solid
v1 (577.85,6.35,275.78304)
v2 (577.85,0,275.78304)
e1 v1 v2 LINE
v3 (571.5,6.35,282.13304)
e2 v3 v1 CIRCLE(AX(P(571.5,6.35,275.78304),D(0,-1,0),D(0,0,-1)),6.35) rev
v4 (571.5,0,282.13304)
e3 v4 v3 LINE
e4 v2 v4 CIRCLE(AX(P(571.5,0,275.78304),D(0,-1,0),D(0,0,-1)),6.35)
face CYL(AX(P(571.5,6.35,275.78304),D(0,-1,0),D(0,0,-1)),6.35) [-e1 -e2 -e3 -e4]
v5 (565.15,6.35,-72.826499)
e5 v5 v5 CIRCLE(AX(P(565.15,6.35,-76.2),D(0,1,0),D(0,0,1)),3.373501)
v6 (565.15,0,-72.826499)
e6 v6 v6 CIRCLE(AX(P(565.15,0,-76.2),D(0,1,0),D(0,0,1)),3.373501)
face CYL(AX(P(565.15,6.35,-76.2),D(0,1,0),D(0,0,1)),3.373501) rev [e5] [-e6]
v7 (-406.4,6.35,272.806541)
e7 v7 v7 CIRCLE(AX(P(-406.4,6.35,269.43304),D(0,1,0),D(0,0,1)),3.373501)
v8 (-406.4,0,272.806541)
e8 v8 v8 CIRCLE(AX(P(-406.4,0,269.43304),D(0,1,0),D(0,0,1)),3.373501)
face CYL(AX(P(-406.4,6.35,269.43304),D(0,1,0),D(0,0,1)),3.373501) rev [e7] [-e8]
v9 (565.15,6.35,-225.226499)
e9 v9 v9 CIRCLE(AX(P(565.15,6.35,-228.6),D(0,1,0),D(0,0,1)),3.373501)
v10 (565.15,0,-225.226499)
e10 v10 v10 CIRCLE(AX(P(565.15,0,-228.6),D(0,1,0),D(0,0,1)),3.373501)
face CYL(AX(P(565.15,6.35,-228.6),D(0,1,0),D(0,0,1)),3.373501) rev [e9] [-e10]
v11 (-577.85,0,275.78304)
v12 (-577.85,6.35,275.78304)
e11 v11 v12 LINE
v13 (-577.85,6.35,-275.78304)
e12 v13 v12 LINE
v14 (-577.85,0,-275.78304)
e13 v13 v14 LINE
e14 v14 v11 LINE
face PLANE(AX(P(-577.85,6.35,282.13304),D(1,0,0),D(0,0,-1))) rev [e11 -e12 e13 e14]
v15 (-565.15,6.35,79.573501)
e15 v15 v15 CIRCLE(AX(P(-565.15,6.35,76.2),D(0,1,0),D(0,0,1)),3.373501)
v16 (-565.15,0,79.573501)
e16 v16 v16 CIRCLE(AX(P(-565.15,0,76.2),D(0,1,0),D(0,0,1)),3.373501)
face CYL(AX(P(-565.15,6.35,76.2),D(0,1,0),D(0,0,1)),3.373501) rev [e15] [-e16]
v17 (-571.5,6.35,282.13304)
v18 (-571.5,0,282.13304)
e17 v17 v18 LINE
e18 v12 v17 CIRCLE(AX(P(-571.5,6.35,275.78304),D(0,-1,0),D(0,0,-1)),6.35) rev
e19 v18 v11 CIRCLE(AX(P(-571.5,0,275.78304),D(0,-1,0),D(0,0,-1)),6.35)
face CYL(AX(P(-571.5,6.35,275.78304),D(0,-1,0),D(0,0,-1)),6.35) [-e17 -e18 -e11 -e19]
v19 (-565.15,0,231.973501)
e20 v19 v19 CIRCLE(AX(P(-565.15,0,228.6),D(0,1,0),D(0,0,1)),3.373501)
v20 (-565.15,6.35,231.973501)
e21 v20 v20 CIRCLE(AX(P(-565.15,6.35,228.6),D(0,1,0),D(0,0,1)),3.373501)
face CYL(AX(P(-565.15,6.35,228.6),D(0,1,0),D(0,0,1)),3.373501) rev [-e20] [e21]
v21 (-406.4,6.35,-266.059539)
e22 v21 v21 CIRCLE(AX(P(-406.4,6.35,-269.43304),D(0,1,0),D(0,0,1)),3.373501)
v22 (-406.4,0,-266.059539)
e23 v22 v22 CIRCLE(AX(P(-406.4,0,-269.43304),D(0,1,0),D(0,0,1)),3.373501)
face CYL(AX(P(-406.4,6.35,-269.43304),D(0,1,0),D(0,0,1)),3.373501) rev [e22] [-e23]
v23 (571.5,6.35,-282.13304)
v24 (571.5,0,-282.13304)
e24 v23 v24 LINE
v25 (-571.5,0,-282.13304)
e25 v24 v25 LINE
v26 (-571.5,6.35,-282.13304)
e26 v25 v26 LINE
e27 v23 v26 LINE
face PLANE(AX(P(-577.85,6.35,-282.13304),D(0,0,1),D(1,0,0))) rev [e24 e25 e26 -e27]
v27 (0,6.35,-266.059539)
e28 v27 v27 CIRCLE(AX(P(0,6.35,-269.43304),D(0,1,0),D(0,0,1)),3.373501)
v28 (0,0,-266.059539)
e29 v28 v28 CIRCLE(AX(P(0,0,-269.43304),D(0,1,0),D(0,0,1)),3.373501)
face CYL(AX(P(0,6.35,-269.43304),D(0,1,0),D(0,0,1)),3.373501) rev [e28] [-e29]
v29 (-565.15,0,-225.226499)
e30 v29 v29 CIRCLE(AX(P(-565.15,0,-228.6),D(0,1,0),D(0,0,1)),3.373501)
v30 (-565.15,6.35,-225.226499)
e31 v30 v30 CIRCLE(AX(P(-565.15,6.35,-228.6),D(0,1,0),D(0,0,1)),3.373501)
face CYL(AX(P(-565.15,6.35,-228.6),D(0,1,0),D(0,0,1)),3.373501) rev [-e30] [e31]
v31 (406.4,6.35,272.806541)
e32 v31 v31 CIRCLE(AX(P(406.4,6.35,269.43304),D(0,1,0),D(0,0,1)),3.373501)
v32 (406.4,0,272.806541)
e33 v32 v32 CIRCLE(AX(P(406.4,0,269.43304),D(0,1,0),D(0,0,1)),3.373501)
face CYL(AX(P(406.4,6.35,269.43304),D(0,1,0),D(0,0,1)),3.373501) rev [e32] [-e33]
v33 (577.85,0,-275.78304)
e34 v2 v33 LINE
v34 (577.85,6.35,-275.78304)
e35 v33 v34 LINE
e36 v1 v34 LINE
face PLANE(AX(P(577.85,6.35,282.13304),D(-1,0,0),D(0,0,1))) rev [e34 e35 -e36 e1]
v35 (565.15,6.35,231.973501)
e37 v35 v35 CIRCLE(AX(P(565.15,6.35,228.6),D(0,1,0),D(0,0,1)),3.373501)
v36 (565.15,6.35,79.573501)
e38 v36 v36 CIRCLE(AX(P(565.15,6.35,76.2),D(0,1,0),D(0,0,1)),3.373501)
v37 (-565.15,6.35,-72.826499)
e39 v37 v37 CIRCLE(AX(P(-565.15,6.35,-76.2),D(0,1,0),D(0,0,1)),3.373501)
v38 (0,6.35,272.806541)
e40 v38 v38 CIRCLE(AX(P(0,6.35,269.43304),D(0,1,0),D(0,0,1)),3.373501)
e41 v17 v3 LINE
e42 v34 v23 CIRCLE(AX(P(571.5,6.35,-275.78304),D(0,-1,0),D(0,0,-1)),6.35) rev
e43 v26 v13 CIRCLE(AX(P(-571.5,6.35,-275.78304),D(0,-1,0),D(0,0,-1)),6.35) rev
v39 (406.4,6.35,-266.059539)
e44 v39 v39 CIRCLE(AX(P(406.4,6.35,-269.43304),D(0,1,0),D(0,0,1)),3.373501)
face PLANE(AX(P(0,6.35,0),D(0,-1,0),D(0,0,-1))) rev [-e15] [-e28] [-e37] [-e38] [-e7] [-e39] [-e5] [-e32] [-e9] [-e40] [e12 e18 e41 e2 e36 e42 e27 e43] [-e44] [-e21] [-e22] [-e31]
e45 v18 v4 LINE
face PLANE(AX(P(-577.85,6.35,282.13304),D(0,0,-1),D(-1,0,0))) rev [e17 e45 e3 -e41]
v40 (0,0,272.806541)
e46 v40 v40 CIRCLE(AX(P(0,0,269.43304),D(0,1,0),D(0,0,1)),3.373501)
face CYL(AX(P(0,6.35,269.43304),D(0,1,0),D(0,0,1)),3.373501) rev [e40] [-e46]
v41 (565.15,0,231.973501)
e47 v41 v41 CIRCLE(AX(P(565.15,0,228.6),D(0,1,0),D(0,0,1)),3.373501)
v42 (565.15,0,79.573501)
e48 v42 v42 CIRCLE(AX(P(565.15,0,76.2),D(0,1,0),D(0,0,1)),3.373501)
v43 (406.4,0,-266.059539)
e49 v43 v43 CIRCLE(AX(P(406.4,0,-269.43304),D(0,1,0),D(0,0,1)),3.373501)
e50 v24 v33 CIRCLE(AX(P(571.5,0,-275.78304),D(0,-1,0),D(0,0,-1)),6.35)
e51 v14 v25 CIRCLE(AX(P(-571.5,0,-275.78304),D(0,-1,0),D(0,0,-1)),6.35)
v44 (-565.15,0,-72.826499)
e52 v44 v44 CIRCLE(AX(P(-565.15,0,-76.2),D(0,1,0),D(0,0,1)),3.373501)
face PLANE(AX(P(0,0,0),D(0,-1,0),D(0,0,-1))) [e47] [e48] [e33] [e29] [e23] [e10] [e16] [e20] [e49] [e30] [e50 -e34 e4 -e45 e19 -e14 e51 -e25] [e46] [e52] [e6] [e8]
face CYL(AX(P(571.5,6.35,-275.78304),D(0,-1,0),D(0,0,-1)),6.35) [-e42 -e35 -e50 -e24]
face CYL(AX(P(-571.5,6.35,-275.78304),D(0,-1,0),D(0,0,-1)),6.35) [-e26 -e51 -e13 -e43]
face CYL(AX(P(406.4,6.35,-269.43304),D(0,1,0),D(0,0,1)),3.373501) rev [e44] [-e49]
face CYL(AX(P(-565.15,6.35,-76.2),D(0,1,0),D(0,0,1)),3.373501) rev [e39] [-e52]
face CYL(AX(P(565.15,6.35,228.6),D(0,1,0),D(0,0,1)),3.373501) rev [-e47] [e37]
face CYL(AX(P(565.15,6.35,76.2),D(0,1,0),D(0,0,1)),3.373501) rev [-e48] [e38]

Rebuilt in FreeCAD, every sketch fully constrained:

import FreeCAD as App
import Part
import Sketcher
from FreeCAD import Vector
Q = App.Units.Quantity


def edges_at(feature, points):
    """Names of the edges that pass closest to the given points."""
    edges = feature.Shape.Edges
    near = lambda p: min(range(len(edges)), key=lambda i: edges[i].distToShape(Part.Vertex(*p))[0])
    return sorted({f"Edge{near(p) + 1}" for p in points})


def add_polygon(sketch, points):
    """Adds a closed chain of lines whose ends are joined by coincident constraints."""
    first, n = sketch.GeometryCount, len(points)
    for a, b in zip(points, points[1:] + points[:1]):
        sketch.addGeometry(Part.LineSegment(App.Vector(*a, 0), App.Vector(*b, 0)), False)
    for i in range(n):
        sketch.addConstraint(Sketcher.Constraint("Coincident", first + i, 2, first + (i + 1) % n, 1))

doc = App.newDocument("Part")
body = doc.addObject("PartDesign::Body", "Body")

# Sketch on XZ plane
sketch1 = body.newObject("Sketcher::SketchObject", "Sketch")
sketch1.AttachmentSupport = (doc.getObject("XZ_Plane"), [""])
sketch1.MapMode = "FlatFace"
add_polygon(sketch1, [(-577.85, -282.13304), (-577.85, 282.13304), (577.85, 282.13304), (577.85, -282.13304)])  # lines 0-3
sketch1.addConstraint(Sketcher.Constraint("Vertical", 0))
sketch1.addConstraint(Sketcher.Constraint("Horizontal", 1))
sketch1.addConstraint(Sketcher.Constraint("Vertical", 2))
sketch1.addConstraint(Sketcher.Constraint("Horizontal", 3))
sketch1.addConstraint(Sketcher.Constraint("Symmetric", 0, 2, 2, 2, -1, 1))
sketch1.addConstraint(Sketcher.Constraint("DistanceX", 1, 1, 1, 2, Q("45.5 in")))
sketch1.addConstraint(Sketcher.Constraint("DistanceY", 0, 1, 0, 2, Q("22.2152 in")))
pad1 = body.newObject("PartDesign::Pad", "Pad")
pad1.Profile = sketch1
pad1.Length = Q("0.25 in")
pad1.Reversed = True
doc.recompute()

fillet = body.newObject("PartDesign::Fillet", "Fillet")
fillet.Base = (pad1, edges_at(pad1, [
    (577.85, 3.175, 282.133),
    (-577.85, 3.175, 282.133),
    (-577.85, 3.175, -282.133),
    (577.85, 3.175, -282.133),
]))
fillet.Radius = Q("0.25 in")

# Sketch on XZ plane
sketch2 = body.newObject("Sketcher::SketchObject", "Sketch001")
sketch2.AttachmentSupport = (doc.getObject("XZ_Plane"), [""])
sketch2.MapMode = "FlatFace"
sketch2.AttachmentOffset = App.Placement(Vector(0, 0, -0.25 * 25.4), App.Rotation())
sketch2.addGeometry(Part.Circle(Vector(-565.15, -228.6, 0), Vector(0, 0, 1), 3.373501), False)
sketch2.addGeometry(Part.Circle(Vector(-565.15, -76.2, 0), Vector(0, 0, 1), 3.373501), False)
sketch2.addGeometry(Part.Circle(Vector(-565.15, 76.2, 0), Vector(0, 0, 1), 3.373501), False)
sketch2.addGeometry(Part.Circle(Vector(-565.15, 228.6, 0), Vector(0, 0, 1), 3.373501), False)
sketch2.addGeometry(Part.Circle(Vector(565.15, -228.6, 0), Vector(0, 0, 1), 3.373501), False)
sketch2.addGeometry(Part.Circle(Vector(565.15, -76.2, 0), Vector(0, 0, 1), 3.373501), False)
sketch2.addGeometry(Part.Circle(Vector(565.15, 76.2, 0), Vector(0, 0, 1), 3.373501), False)
sketch2.addGeometry(Part.Circle(Vector(565.15, 228.6, 0), Vector(0, 0, 1), 3.373501), False)
sketch2.addGeometry(Part.Circle(Vector(-406.4, -269.43304, 0), Vector(0, 0, 1), 3.373501), False)
sketch2.addGeometry(Part.Circle(Vector(0, -269.43304, 0), Vector(0, 0, 1), 3.373501), False)
sketch2.addGeometry(Part.Circle(Vector(406.4, -269.43304, 0), Vector(0, 0, 1), 3.373501), False)
sketch2.addGeometry(Part.Circle(Vector(406.4, 269.43304, 0), Vector(0, 0, 1), 3.373501), False)
sketch2.addGeometry(Part.Circle(Vector(0, 269.43304, 0), Vector(0, 0, 1), 3.373501), False)
sketch2.addGeometry(Part.Circle(Vector(-406.4, 269.43304, 0), Vector(0, 0, 1), 3.373501), False)
sketch2.addConstraint(Sketcher.Constraint("Equal", 0, 1))
sketch2.addConstraint(Sketcher.Constraint("Equal", 1, 2))
sketch2.addConstraint(Sketcher.Constraint("Equal", 2, 3))
sketch2.addConstraint(Sketcher.Constraint("Equal", 3, 4))
sketch2.addConstraint(Sketcher.Constraint("Equal", 4, 5))
sketch2.addConstraint(Sketcher.Constraint("Equal", 5, 6))
sketch2.addConstraint(Sketcher.Constraint("Equal", 6, 7))
sketch2.addConstraint(Sketcher.Constraint("Equal", 7, 8))
sketch2.addConstraint(Sketcher.Constraint("Equal", 8, 9))
sketch2.addConstraint(Sketcher.Constraint("Equal", 9, 10))
sketch2.addConstraint(Sketcher.Constraint("Equal", 10, 11))
sketch2.addConstraint(Sketcher.Constraint("Equal", 11, 12))
sketch2.addConstraint(Sketcher.Constraint("Equal", 12, 13))
sketch2.addConstraint(Sketcher.Constraint("Symmetric", 3, 3, 4, 3, -1, 1))
sketch2.addConstraint(Sketcher.Constraint("Symmetric", 2, 3, 5, 3, -1, 1))
sketch2.addConstraint(Sketcher.Constraint("Symmetric", 1, 3, 6, 3, -1, 1))
sketch2.addConstraint(Sketcher.Constraint("Symmetric", 0, 3, 7, 3, -1, 1))
sketch2.addConstraint(Sketcher.Constraint("Symmetric", 8, 3, 11, 3, -1, 1))
sketch2.addConstraint(Sketcher.Constraint("Symmetric", 9, 3, 12, 3, -1, 1))
sketch2.addConstraint(Sketcher.Constraint("Symmetric", 10, 3, 13, 3, -1, 1))
sketch2.addConstraint(Sketcher.Constraint("Symmetric", 0, 3, 4, 3, -2))
sketch2.addConstraint(Sketcher.Constraint("Symmetric", 1, 3, 5, 3, -2))
sketch2.addConstraint(Sketcher.Constraint("Symmetric", 8, 3, 10, 3, -2))
sketch2.addConstraint(Sketcher.Constraint("PointOnObject", 9, 3, -2))
sketch2.addConstraint(Sketcher.Constraint("Horizontal", 8, 3, 9, 3))
sketch2.addConstraint(Sketcher.Constraint("Vertical", 0, 3, 1, 3))
sketch2.addConstraint(Sketcher.Constraint("DistanceY", 0, 3, -1, 1, Q("9 in")))
sketch2.addConstraint(Sketcher.Constraint("DistanceY", 1, 3, -1, 1, Q("3 in")))
sketch2.addConstraint(Sketcher.Constraint("DistanceX", 8, 3, -1, 1, Q("16 in")))
sketch2.addConstraint(Sketcher.Constraint("DistanceX", 0, 3, 4, 3, Q("44.5 in")))
sketch2.addConstraint(Sketcher.Constraint("Diameter", 0, 6.747002))
sketch2.addConstraint(Sketcher.Constraint("DistanceY", 8, 3, -1, 1, Q("10.6076 in")))
doc.recompute()
hole = body.newObject("PartDesign::Hole", "Hole")
hole.Profile = sketch2
hole.ThreadType = "None"
hole.Diameter = 6.747002
hole.DepthType = "ThroughAll"
hole.Reversed = True

doc.recompute()
